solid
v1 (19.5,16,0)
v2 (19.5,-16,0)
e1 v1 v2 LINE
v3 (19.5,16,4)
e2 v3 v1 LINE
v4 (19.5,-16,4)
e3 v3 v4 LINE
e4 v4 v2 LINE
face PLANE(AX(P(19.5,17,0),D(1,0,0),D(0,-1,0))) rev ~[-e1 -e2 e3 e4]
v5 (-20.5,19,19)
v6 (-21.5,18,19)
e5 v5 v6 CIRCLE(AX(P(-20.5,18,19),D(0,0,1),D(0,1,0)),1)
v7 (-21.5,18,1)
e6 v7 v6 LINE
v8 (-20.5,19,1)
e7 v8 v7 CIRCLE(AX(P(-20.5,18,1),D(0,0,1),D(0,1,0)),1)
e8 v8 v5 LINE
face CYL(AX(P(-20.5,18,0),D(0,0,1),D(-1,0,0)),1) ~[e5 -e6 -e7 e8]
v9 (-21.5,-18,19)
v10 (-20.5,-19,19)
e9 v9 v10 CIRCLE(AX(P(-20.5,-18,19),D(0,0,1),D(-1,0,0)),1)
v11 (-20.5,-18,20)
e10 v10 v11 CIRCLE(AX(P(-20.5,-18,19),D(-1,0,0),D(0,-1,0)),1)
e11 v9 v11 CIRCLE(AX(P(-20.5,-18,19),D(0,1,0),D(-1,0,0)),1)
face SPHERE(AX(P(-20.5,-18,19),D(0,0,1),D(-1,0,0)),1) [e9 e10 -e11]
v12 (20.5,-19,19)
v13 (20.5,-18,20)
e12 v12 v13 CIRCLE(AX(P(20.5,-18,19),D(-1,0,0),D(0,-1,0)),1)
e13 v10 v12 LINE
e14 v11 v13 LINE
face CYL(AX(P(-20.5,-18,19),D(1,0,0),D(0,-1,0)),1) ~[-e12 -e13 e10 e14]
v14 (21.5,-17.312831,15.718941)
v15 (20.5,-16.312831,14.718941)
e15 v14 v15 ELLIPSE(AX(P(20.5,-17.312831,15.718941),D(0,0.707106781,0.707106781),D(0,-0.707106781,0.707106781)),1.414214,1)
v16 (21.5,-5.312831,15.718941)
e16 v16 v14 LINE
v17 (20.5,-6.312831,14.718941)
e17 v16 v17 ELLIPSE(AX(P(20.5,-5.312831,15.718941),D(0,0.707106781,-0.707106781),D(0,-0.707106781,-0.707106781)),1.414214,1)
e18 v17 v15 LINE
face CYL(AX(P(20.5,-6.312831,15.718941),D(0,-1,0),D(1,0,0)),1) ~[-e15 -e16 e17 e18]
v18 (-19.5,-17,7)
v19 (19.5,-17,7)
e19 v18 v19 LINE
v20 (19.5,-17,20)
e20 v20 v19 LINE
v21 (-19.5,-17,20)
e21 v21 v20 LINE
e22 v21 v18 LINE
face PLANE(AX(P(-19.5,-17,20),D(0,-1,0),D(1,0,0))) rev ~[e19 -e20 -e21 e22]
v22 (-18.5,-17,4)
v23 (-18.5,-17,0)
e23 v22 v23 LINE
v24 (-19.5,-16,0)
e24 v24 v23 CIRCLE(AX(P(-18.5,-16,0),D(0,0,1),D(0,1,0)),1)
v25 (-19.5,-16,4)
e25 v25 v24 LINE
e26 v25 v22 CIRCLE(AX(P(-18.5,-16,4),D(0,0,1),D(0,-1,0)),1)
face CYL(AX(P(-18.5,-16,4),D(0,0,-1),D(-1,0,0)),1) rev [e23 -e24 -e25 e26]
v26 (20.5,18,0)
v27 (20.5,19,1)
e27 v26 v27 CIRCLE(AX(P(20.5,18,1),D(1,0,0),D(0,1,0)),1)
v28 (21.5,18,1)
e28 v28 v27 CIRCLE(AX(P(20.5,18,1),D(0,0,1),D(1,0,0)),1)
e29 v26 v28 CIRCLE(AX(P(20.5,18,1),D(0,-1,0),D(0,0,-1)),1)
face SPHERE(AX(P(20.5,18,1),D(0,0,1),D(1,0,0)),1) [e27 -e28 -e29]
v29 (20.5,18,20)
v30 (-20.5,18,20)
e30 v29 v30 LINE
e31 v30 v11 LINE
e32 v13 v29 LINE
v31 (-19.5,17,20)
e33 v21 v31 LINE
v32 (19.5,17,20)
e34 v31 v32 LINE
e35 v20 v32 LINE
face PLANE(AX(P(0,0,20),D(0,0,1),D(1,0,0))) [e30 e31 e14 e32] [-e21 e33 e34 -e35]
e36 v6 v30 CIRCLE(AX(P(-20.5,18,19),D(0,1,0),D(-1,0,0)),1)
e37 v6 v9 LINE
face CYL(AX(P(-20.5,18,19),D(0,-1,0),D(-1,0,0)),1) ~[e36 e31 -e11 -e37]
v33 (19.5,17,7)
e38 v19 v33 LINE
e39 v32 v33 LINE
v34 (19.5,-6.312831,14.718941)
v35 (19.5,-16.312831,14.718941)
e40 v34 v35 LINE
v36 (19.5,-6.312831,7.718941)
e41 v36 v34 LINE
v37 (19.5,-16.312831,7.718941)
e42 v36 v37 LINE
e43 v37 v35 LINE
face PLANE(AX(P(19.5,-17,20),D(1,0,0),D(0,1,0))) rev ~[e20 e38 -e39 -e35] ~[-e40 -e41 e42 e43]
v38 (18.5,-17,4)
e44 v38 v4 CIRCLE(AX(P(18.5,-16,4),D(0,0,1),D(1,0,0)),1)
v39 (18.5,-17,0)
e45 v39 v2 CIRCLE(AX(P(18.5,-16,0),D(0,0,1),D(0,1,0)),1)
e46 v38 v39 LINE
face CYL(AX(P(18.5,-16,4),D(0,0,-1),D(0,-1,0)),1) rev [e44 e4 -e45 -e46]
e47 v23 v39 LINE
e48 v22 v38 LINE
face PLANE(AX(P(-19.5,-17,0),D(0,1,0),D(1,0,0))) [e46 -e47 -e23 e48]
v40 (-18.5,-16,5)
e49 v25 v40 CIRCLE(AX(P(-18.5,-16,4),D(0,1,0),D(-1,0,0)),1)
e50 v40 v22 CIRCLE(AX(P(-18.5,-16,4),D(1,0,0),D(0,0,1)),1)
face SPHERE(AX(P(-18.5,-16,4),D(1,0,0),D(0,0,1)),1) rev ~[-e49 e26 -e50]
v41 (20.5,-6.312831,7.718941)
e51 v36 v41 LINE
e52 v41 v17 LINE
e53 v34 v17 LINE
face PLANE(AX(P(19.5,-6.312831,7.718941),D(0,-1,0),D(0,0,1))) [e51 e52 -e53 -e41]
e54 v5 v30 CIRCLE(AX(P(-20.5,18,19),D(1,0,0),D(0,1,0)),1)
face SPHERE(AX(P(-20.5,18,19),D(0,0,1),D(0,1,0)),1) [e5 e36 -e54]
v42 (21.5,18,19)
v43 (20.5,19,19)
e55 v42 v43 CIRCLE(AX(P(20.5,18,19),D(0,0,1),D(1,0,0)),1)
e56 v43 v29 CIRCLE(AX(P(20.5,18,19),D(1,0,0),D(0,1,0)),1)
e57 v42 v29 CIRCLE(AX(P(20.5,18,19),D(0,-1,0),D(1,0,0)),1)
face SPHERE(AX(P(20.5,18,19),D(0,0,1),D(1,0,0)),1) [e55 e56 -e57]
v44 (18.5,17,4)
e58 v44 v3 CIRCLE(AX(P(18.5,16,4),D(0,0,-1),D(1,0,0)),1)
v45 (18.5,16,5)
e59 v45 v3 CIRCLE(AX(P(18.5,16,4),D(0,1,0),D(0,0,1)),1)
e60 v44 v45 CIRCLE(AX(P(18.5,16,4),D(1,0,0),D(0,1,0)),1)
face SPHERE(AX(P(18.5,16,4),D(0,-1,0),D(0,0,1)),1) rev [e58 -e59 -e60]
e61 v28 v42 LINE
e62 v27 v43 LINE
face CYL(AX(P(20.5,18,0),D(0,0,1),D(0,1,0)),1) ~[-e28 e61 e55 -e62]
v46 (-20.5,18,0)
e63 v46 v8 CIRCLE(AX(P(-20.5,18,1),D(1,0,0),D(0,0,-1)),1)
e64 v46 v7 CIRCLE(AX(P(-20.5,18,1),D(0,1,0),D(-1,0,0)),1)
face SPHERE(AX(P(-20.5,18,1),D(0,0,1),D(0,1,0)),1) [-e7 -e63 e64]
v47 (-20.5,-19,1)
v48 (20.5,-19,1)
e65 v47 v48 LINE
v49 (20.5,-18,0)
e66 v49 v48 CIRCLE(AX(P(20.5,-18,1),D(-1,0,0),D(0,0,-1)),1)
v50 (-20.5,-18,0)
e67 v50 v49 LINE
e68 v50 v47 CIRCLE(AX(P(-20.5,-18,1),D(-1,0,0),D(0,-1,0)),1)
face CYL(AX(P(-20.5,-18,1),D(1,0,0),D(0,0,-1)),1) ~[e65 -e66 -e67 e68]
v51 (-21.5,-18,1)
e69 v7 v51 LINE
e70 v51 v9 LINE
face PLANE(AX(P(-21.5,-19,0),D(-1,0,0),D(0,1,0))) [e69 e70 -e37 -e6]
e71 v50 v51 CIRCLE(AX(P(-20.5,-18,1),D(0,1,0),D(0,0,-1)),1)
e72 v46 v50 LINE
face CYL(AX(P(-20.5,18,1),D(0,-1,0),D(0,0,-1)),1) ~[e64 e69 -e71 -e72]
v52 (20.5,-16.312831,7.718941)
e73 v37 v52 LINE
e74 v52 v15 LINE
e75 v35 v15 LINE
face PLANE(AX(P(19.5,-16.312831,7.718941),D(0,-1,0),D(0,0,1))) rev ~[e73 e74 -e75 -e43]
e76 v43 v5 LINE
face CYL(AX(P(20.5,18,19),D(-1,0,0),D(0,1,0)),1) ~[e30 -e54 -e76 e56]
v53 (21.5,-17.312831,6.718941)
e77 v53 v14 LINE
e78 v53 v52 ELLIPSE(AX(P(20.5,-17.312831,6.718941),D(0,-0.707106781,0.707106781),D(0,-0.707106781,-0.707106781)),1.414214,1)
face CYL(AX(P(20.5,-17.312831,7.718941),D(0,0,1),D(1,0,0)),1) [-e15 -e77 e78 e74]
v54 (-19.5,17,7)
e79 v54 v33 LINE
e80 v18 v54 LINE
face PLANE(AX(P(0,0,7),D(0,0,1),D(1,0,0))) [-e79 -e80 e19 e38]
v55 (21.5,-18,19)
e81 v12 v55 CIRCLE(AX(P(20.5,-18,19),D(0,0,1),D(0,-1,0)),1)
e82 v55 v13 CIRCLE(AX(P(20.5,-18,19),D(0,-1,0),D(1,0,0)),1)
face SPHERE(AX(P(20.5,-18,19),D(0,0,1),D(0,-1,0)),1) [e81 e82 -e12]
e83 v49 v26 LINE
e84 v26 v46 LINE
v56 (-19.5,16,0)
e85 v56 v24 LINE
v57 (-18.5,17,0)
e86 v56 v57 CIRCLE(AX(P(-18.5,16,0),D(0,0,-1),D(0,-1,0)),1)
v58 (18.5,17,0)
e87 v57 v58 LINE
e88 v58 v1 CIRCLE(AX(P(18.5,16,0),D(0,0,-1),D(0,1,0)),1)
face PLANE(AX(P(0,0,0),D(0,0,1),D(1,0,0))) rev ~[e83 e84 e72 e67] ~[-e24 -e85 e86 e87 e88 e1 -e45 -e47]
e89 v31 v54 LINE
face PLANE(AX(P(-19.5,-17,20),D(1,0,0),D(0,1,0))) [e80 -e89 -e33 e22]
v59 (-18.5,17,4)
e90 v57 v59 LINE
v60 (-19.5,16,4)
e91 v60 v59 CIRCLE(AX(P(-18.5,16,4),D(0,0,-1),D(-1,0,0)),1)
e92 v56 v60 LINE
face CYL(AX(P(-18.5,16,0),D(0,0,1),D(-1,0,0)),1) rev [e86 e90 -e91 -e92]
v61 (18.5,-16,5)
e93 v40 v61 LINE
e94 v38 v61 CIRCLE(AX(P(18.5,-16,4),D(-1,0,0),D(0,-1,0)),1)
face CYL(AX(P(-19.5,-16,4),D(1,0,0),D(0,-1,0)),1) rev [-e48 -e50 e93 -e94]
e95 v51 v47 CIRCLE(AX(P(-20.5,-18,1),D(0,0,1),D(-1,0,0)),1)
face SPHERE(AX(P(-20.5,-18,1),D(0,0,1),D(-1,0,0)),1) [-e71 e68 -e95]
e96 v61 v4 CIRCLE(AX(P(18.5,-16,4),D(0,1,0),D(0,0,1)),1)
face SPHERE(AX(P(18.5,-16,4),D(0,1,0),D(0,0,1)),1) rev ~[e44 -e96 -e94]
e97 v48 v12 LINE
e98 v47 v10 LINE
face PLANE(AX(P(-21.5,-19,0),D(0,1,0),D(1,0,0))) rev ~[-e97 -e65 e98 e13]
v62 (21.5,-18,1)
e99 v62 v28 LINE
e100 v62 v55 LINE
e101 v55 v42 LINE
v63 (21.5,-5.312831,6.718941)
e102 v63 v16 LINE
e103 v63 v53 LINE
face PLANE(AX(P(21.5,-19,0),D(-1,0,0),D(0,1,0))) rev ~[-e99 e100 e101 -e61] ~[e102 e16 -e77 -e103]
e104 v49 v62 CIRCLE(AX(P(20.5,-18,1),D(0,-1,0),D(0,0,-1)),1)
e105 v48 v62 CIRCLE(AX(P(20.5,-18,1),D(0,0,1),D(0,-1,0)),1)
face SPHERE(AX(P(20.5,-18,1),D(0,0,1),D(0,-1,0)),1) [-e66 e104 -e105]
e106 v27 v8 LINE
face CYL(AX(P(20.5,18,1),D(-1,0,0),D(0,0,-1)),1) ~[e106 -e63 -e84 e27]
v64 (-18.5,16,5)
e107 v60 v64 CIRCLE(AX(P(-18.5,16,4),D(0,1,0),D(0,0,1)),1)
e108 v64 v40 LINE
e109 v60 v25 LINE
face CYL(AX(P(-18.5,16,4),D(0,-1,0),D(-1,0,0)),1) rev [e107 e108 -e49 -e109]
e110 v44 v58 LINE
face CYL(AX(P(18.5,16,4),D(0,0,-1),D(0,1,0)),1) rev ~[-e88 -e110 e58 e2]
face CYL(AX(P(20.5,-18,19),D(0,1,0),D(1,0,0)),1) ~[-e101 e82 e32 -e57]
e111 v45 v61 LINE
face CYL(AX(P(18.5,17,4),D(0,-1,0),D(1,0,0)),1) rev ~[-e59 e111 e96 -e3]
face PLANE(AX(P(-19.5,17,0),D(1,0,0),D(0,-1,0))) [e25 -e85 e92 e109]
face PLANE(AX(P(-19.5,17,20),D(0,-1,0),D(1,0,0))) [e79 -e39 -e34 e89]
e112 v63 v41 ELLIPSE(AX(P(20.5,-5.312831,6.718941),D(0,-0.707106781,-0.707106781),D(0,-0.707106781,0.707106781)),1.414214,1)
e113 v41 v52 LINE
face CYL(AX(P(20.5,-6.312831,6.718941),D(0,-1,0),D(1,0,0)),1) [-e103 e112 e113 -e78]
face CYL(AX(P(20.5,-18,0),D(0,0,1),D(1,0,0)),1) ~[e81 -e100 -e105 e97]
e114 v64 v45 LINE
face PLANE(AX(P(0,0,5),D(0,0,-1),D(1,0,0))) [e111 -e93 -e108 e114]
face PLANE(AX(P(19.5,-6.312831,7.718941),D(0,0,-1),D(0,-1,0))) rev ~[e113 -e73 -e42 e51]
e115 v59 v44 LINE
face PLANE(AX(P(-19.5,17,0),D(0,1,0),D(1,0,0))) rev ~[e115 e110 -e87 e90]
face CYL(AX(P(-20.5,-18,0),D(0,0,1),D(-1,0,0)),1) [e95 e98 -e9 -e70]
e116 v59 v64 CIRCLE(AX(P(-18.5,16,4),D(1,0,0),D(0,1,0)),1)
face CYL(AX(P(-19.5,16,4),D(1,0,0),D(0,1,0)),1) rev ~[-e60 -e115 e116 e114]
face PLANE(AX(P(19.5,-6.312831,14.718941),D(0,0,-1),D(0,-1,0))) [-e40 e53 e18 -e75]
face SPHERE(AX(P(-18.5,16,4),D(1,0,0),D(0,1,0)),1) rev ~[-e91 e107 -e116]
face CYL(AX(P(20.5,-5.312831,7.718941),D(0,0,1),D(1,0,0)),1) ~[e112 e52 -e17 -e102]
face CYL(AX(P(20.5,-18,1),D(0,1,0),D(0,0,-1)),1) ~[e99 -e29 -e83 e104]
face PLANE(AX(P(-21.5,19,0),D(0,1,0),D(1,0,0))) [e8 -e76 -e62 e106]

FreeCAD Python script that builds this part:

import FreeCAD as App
import Part
import Sketcher

V = App.Vector


def edges_at(feature, points):
    """Names of the edges that pass closest to the given points."""
    edges = feature.Shape.Edges
    near = lambda p: min(range(len(edges)), key=lambda i: edges[i].distToShape(Part.Vertex(*p))[0])
    return sorted({f"Edge{near(p) + 1}" for p in points})


def add_polygon(sketch, points):
    """Adds a closed chain of lines whose ends are joined by coincident constraints."""
    first, n = sketch.GeometryCount, len(points)
    for a, b in zip(points, points[1:] + points[:1]):
        sketch.addGeometry(Part.LineSegment(App.Vector(*a, 0), App.Vector(*b, 0)), False)
    for i in range(n):
        sketch.addConstraint(Sketcher.Constraint("Coincident", first + i, 2, first + (i + 1) % n, 1))

doc = App.newDocument("Part")
body = doc.addObject("PartDesign::Body", "Body")

# Sketch on XY plane
sketch1 = body.newObject("Sketcher::SketchObject", "Sketch")
sketch1.AttachmentSupport = (doc.getObject("XY_Plane"), [""])
sketch1.MapMode = "FlatFace"
add_polygon(sketch1, [(-22, 19), (-22, -19), (22, -19), (22, 19)])  # lines 0-3
sketch1.addConstraint([
    Sketcher.Constraint("Vertical", 0),
    Sketcher.Constraint("Horizontal", 1),
    Sketcher.Constraint("Vertical", 2),
    Sketcher.Constraint("Horizontal", 3),
    Sketcher.Constraint("Symmetric", 0, 2, 2, 2, -1, 1),
    Sketcher.Constraint("DistanceX", 1, 1, 1, 2, 43.0),
    Sketcher.Constraint("DistanceY", 0, 2, 0, 1, 38.0),
])
pad1 = body.newObject("PartDesign::Pad", "Pad")
pad1.Profile = sketch1
pad1.Length = 20

# Sketch on XY plane
sketch2 = body.newObject("Sketcher::SketchObject", "Sketch001")
sketch2.AttachmentSupport = (doc.getObject("XY_Plane"), [""])
sketch2.MapMode = "FlatFace"
add_polygon(sketch2, [(-20, -17), (-20, 17), (20, 17), (20, -17)])  # lines 0-3
sketch2.addConstraint([
    Sketcher.Constraint("Vertical", 0),
    Sketcher.Constraint("Horizontal", 1),
    Sketcher.Constraint("Vertical", 2),
    Sketcher.Constraint("Horizontal", 3),
    Sketcher.Constraint("Symmetric", 0, 2, 2, 2, -1, 1),
    Sketcher.Constraint("DistanceX", 1, 1, 1, 2, 39.0),
    Sketcher.Constraint("DistanceY", 0, 1, 0, 2, 34.0),
])
pocket1 = body.newObject("PartDesign::Pocket", "Pocket")
pocket1.Profile = sketch2
pocket1.Length = 5
pocket1.Reversed = True

# Sketch on XY plane
sketch3 = body.newObject("Sketcher::SketchObject", "Sketch002")
sketch3.AttachmentSupport = (doc.getObject("XY_Plane"), [""])
sketch3.MapMode = "FlatFace"
sketch3.AttachmentOffset = App.Placement(V(0, 0, 20), App.Rotation())
add_polygon(sketch3, [(-20, 17), (-20, -17), (20, -17), (20, 17)])  # lines 0-3
sketch3.addConstraint([
    Sketcher.Constraint("Vertical", 0),
    Sketcher.Constraint("Horizontal", 1),
    Sketcher.Constraint("Vertical", 2),
    Sketcher.Constraint("Horizontal", 3),
    Sketcher.Constraint("Symmetric", 0, 2, 2, 2, -1, 1),
    Sketcher.Constraint("DistanceX", 1, 1, 1, 2, 39.0),
    Sketcher.Constraint("DistanceY", 0, 2, 0, 1, 34.0),
])
pocket2 = body.newObject("PartDesign::Pocket", "Pocket001")
pocket2.Profile = sketch3
pocket2.Length = 13
doc.recompute()

fillet = body.newObject("PartDesign::Fillet", "Fillet")
fillet.Base = (pocket2, edges_at(pocket2, [(19.5, 0, 5)]))
fillet.Radius = 1
doc.recompute()

fillet2 = body.newObject("PartDesign::Fillet", "Fillet001")
fillet2.Base = (fillet, edges_at(fillet, [(-0.5, -17, 5)]))
fillet2.Radius = 1
doc.recompute()

fillet3 = body.newObject("PartDesign::Fillet", "Fillet002")
fillet3.Base = (fillet2, edges_at(fillet2, [(-0.5, 17, 5)]))
fillet3.Radius = 1
doc.recompute()

fillet4 = body.newObject("PartDesign::Fillet", "Fillet003")
fillet4.Base = (fillet3, edges_at(fillet3, [(-19.5, 0, 5)]))
fillet4.Radius = 1
doc.recompute()

fillet5 = body.newObject("PartDesign::Fillet", "Fillet004")
fillet5.Base = (fillet4, edges_at(fillet4, [(-21.5, -19, 10)]))
fillet5.Radius = 1
doc.recompute()

fillet6 = body.newObject("PartDesign::Fillet", "Fillet005")
fillet6.Base = (fillet5, edges_at(fillet5, [(-21.5, 19, 10)]))
fillet6.Radius = 1
doc.recompute()

fillet7 = body.newObject("PartDesign::Fillet", "Fillet006")
fillet7.Base = (fillet6, edges_at(fillet6, [(21.5, 19, 10)]))
fillet7.Radius = 1
doc.recompute()

fillet8 = body.newObject("PartDesign::Fillet", "Fillet007")
fillet8.Base = (fillet7, edges_at(fillet7, [(21.5, -19, 10)]))
fillet8.Radius = 1
doc.recompute()

fillet9 = body.newObject("PartDesign::Fillet", "Fillet008")
fillet9.Base = (fillet8, edges_at(fillet8, [(21.5, 0, 0)]))
fillet9.Radius = 1
doc.recompute()

fillet10 = body.newObject("PartDesign::Fillet", "Fillet009")
fillet10.Base = (fillet9, edges_at(fillet9, [(21.5, 0, 20)]))
fillet10.Radius = 1

# Sketch on YZ plane
sketch4 = body.newObject("Sketcher::SketchObject", "Sketch003")
sketch4.AttachmentSupport = (doc.getObject("YZ_Plane"), [""])
sketch4.MapMode = "FlatFace"
sketch4.AttachmentOffset = App.Placement(V(0, 0, 19.5), App.Rotation())
add_polygon(sketch4, [(-6, 15), (-6, 8), (-16, 8), (-16, 15)])  # lines 0-3
sketch4.addConstraint([
    Sketcher.Constraint("Vertical", 0),
    Sketcher.Constraint("Horizontal", 1),
    Sketcher.Constraint("Vertical", 2),
    Sketcher.Constraint("Horizontal", 3),
    Sketcher.Constraint("DistanceX", 1, 2, 1, 1, 10.0),
    Sketcher.Constraint("DistanceY", 0, 2, 0, 1, 7.0),
    Sketcher.Constraint("DistanceX", 0, 2, -1, 1, 6.312831),
    Sketcher.Constraint("DistanceY", -1, 1, 0, 2, 7.718941),
])
pocket3 = body.newObject("PartDesign::Pocket", "Pocket002")
pocket3.Profile = sketch4
pocket3.Length = 5
pocket3.Reversed = True
doc.recompute()

fillet11 = body.newObject("PartDesign::Fillet", "Fillet010")
fillet11.Base = (pocket3, edges_at(pocket3, [
    (21.5, -11.313, 7.719),
    (21.5, -16.313, 11.219),
    (21.5, -11.313, 14.719),
    (21.5, -6.313, 11.219),
]))
fillet11.Radius = 1

doc.recompute()
